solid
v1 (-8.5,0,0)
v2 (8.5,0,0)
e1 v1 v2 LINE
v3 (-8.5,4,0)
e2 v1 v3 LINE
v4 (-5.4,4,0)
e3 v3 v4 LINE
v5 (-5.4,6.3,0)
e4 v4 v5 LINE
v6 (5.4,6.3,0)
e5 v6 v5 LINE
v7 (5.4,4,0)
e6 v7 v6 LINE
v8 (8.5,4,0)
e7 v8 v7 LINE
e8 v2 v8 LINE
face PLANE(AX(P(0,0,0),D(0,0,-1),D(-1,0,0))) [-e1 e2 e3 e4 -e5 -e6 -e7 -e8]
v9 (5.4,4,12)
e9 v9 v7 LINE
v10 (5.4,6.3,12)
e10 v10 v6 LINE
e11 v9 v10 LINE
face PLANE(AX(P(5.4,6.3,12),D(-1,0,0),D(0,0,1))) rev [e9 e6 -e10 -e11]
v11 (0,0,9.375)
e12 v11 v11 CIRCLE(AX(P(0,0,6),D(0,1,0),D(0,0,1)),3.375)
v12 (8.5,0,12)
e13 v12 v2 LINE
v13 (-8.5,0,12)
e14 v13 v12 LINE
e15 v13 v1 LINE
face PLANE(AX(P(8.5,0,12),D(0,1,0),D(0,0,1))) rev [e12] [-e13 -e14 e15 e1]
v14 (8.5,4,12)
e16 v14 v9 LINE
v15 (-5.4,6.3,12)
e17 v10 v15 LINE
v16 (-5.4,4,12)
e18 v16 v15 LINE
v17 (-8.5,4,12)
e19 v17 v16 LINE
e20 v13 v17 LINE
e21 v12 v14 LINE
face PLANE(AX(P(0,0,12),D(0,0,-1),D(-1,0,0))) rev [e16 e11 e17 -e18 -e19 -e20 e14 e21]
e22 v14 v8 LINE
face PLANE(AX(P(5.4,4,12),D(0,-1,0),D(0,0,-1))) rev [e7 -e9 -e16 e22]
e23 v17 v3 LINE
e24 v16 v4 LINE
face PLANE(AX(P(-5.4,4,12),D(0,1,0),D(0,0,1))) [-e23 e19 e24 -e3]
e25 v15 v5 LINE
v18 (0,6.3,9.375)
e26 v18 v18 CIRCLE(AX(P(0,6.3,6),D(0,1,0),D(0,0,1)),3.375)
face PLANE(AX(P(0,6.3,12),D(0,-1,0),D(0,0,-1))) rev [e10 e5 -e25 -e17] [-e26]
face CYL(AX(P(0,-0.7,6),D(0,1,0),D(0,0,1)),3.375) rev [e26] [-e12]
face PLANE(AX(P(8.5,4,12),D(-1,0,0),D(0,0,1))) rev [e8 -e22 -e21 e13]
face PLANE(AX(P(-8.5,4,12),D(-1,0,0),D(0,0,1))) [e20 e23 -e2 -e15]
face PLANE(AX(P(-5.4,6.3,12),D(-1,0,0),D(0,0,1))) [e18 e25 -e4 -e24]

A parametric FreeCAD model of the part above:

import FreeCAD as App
import Part
import Sketcher

doc = App.newDocument("Part")
body = doc.addObject("PartDesign::Body", "Body")

# Sketch on XY plane
sketch1 = body.newObject("Sketcher::SketchObject", "Sketch")
sketch1.AttachmentSupport = (doc.getObject("XY_Plane"), [""])
sketch1.MapMode = "FlatFace"
sketch1.addGeometry(Part.LineSegment(App.Vector(5.4, 6.3, 0), App.Vector(0, 6.3, 0)), False)
sketch1.addGeometry(Part.LineSegment(App.Vector(0, 6.3, 0), App.Vector(0, 0, 0)), False)
sketch1.addGeometry(Part.LineSegment(App.Vector(0, 0, 0), App.Vector(8.5, 0, 0)), False)
sketch1.addGeometry(Part.LineSegment(App.Vector(8.5, 0, 0), App.Vector(8.5, 4, 0)), False)
sketch1.addGeometry(Part.LineSegment(App.Vector(8.5, 4, 0), App.Vector(5.4, 4, 0)), False)
sketch1.addGeometry(Part.LineSegment(App.Vector(5.4, 4, 0), App.Vector(5.4, 6.3, 0)), False)
sketch1.addConstraint(Sketcher.Constraint("Coincident", 0, 2, 1, 1))
sketch1.addConstraint(Sketcher.Constraint("Coincident", 1, 2, 2, 1))
sketch1.addConstraint(Sketcher.Constraint("Coincident", 2, 2, 3, 1))
sketch1.addConstraint(Sketcher.Constraint("Coincident", 3, 2, 4, 1))
sketch1.addConstraint(Sketcher.Constraint("Coincident", 4, 2, 5, 1))
sketch1.addConstraint(Sketcher.Constraint("Coincident", 5, 2, 0, 1))
sketch1.addConstraint(Sketcher.Constraint("Horizontal", 0))
sketch1.addConstraint(Sketcher.Constraint("Vertical", 1))
sketch1.addConstraint(Sketcher.Constraint("Horizontal", 2))
sketch1.addConstraint(Sketcher.Constraint("Vertical", 3))
sketch1.addConstraint(Sketcher.Constraint("Horizontal", 4))
sketch1.addConstraint(Sketcher.Constraint("Vertical", 5))
sketch1.addConstraint(Sketcher.Constraint("Coincident", 1, 2, -1, 1))
sketch1.addConstraint(Sketcher.Constraint("DistanceY", 3, 1, 3, 2, 4.0))
sketch1.addConstraint(Sketcher.Constraint("DistanceX", 0, 2, 0, 1, 5.4))
sketch1.addConstraint(Sketcher.Constraint("DistanceX", 2, 1, 2, 2, 8.5))
sketch1.addConstraint(Sketcher.Constraint("DistanceY", 1, 2, 1, 1, 6.3))
pad1 = body.newObject("PartDesign::Pad", "Pad")
pad1.Profile = sketch1
pad1.Length = 12
doc.recompute()

mirrored = body.newObject("PartDesign::Mirrored", "Mirrored")
mirrored.Originals = [pad1]
mirrored.MirrorPlane = (doc.getObject("YZ_Plane"), [""])
body.Tip = mirrored

# Sketch on XZ plane
sketch2 = body.newObject("Sketcher::SketchObject", "Sketch001")
sketch2.AttachmentSupport = (doc.getObject("XZ_Plane"), [""])
sketch2.MapMode = "FlatFace"
sketch2.AttachmentOffset = App.Placement(App.Vector(0, 0, -6.3), App.Rotation())
sketch2.addGeometry(Part.Circle(App.Vector(0, 6, 0), App.Vector(0, 0, 1), 3.4), False)
sketch2.addConstraint(Sketcher.Constraint("PointOnObject", 0, 3, -2))
sketch2.addConstraint(Sketcher.Constraint("Diameter", 0, 6.75))
sketch2.addConstraint(Sketcher.Constraint("DistanceY", -1, 1, 0, 3, 6.0))
pocket1 = body.newObject("PartDesign::Pocket", "Pocket")
pocket1.Profile = sketch2
pocket1.Length = 7
pocket1.Reversed = True

doc.recompute()
